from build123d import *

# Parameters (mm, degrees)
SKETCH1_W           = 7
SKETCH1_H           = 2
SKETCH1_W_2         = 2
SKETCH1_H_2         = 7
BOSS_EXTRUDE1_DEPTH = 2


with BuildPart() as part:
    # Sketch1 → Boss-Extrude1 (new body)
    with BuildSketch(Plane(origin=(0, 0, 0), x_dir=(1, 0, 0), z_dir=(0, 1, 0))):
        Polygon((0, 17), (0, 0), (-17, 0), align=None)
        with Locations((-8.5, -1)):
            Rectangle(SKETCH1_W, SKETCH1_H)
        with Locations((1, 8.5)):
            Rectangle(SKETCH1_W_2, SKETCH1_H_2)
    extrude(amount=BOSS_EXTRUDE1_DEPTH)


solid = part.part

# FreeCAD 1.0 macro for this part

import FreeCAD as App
import Part
import Sketcher

doc = App.newDocument("Part")
params = doc.addObject("Spreadsheet::Sheet", "Params")
for row, (alias, value) in enumerate([
    ("sketch1_width", "5 mm"),
    ("sketch1_width2", "7 mm"),
    ("sketch1_width3", "2 mm"),
    ("pad1_length", "2 mm"),
], start=1):
    params.set(f"A{row}", alias)
    params.set(f"B{row}", "=" + value)
    params.setAlias(f"B{row}", alias)

body = doc.addObject("PartDesign::Body", "Body")

sketch1 = body.newObject("Sketcher::SketchObject", "Sketch")
sketch1.AttachmentSupport = (doc.getObject("XZ_Plane"), [""])
sketch1.MapMode = "FlatFace"
sketch1.addGeometry(Part.LineSegment(App.Vector(0, -12, 0), App.Vector(0, -17, 0)), False)
sketch1.addGeometry(Part.LineSegment(App.Vector(0, -17, 0), App.Vector(-17, 0, 0)), False)
sketch1.addGeometry(Part.LineSegment(App.Vector(-17, 0, 0), App.Vector(-12, 0, 0)), False)
sketch1.addGeometry(Part.LineSegment(App.Vector(-12, 0, 0), App.Vector(-12, 2, 0)), False)
sketch1.addGeometry(Part.LineSegment(App.Vector(-12, 2, 0), App.Vector(-5, 2, 0)), False)
sketch1.addGeometry(Part.LineSegment(App.Vector(-5, 2, 0), App.Vector(-5, 0, 0)), False)
sketch1.addGeometry(Part.LineSegment(App.Vector(-5, 0, 0), App.Vector(0, 0, 0)), False)
sketch1.addGeometry(Part.LineSegment(App.Vector(0, 0, 0), App.Vector(0, -5, 0)), False)
sketch1.addGeometry(Part.LineSegment(App.Vector(0, -5, 0), App.Vector(2, -5, 0)), False)
sketch1.addGeometry(Part.LineSegment(App.Vector(2, -5, 0), App.Vector(2, -12, 0)), False)
sketch1.addGeometry(Part.LineSegment(App.Vector(2, -12, 0), App.Vector(0, -12, 0)), False)
sketch1.addConstraint(Sketcher.Constraint("Coincident", 0, 2, 1, 1))
sketch1.addConstraint(Sketcher.Constraint("Coincident", 1, 2, 2, 1))
sketch1.addConstraint(Sketcher.Constraint("Coincident", 2, 2, 3, 1))
sketch1.addConstraint(Sketcher.Constraint("Coincident", 3, 2, 4, 1))
sketch1.addConstraint(Sketcher.Constraint("Coincident", 4, 2, 5, 1))
sketch1.addConstraint(Sketcher.Constraint("Coincident", 5, 2, 6, 1))
sketch1.addConstraint(Sketcher.Constraint("Coincident", 6, 2, 7, 1))
sketch1.addConstraint(Sketcher.Constraint("Coincident", 7, 2, 8, 1))
sketch1.addConstraint(Sketcher.Constraint("Coincident", 8, 2, 9, 1))
sketch1.addConstraint(Sketcher.Constraint("Coincident", 9, 2, 10, 1))
sketch1.addConstraint(Sketcher.Constraint("Coincident", 10, 2, 0, 1))
sketch1.addConstraint(Sketcher.Constraint("Vertical", 0))
sketch1.addConstraint(Sketcher.Constraint("Horizontal", 2))
sketch1.addConstraint(Sketcher.Constraint("Vertical", 3))
sketch1.addConstraint(Sketcher.Constraint("Horizontal", 4))
sketch1.addConstraint(Sketcher.Constraint("Vertical", 5))
sketch1.addConstraint(Sketcher.Constraint("Horizontal", 6))
sketch1.addConstraint(Sketcher.Constraint("Vertical", 7))
sketch1.addConstraint(Sketcher.Constraint("Horizontal", 8))
sketch1.addConstraint(Sketcher.Constraint("Vertical", 9))
sketch1.addConstraint(Sketcher.Constraint("Horizontal", 10))
sketch1.addConstraint(Sketcher.Constraint("Coincident", 6, 2, -1, 1))
sketch1.addConstraint(Sketcher.Constraint("PointOnObject", 0, 2, -2))
sketch1.addConstraint(Sketcher.Constraint("PointOnObject", 1, 2, -1))
sketch1.addConstraint(Sketcher.Constraint("Equal", 2, 6))
sketch1.addConstraint(Sketcher.Constraint("Equal", 6, 0))
sketch1.addConstraint(Sketcher.Constraint("Equal", 10, 3))
sketch1.addConstraint(Sketcher.Constraint("Equal", 0, 7))
sketch1.addConstraint(Sketcher.Constraint("Equal", 4, 9))
sketch1.addConstraint(Sketcher.Constraint("DistanceX", 2, 1, 2, 2, 5.0))
sketch1.addConstraint(Sketcher.Constraint("DistanceX", 4, 1, 4, 2, 7.0))
sketch1.addConstraint(Sketcher.Constraint("DistanceX", 8, 1, 8, 2, 2.0))
sketch1.setExpression("Constraints[29]", "Params.sketch1_width")
sketch1.setExpression("Constraints[30]", "Params.sketch1_width2")
sketch1.setExpression("Constraints[31]", "Params.sketch1_width3")
pad1 = body.newObject("PartDesign::Pad", "Pad")
pad1.Profile = sketch1
pad1.setExpression("Length", "Params.pad1_length")
pad1.Reversed = True

doc.recompute()
